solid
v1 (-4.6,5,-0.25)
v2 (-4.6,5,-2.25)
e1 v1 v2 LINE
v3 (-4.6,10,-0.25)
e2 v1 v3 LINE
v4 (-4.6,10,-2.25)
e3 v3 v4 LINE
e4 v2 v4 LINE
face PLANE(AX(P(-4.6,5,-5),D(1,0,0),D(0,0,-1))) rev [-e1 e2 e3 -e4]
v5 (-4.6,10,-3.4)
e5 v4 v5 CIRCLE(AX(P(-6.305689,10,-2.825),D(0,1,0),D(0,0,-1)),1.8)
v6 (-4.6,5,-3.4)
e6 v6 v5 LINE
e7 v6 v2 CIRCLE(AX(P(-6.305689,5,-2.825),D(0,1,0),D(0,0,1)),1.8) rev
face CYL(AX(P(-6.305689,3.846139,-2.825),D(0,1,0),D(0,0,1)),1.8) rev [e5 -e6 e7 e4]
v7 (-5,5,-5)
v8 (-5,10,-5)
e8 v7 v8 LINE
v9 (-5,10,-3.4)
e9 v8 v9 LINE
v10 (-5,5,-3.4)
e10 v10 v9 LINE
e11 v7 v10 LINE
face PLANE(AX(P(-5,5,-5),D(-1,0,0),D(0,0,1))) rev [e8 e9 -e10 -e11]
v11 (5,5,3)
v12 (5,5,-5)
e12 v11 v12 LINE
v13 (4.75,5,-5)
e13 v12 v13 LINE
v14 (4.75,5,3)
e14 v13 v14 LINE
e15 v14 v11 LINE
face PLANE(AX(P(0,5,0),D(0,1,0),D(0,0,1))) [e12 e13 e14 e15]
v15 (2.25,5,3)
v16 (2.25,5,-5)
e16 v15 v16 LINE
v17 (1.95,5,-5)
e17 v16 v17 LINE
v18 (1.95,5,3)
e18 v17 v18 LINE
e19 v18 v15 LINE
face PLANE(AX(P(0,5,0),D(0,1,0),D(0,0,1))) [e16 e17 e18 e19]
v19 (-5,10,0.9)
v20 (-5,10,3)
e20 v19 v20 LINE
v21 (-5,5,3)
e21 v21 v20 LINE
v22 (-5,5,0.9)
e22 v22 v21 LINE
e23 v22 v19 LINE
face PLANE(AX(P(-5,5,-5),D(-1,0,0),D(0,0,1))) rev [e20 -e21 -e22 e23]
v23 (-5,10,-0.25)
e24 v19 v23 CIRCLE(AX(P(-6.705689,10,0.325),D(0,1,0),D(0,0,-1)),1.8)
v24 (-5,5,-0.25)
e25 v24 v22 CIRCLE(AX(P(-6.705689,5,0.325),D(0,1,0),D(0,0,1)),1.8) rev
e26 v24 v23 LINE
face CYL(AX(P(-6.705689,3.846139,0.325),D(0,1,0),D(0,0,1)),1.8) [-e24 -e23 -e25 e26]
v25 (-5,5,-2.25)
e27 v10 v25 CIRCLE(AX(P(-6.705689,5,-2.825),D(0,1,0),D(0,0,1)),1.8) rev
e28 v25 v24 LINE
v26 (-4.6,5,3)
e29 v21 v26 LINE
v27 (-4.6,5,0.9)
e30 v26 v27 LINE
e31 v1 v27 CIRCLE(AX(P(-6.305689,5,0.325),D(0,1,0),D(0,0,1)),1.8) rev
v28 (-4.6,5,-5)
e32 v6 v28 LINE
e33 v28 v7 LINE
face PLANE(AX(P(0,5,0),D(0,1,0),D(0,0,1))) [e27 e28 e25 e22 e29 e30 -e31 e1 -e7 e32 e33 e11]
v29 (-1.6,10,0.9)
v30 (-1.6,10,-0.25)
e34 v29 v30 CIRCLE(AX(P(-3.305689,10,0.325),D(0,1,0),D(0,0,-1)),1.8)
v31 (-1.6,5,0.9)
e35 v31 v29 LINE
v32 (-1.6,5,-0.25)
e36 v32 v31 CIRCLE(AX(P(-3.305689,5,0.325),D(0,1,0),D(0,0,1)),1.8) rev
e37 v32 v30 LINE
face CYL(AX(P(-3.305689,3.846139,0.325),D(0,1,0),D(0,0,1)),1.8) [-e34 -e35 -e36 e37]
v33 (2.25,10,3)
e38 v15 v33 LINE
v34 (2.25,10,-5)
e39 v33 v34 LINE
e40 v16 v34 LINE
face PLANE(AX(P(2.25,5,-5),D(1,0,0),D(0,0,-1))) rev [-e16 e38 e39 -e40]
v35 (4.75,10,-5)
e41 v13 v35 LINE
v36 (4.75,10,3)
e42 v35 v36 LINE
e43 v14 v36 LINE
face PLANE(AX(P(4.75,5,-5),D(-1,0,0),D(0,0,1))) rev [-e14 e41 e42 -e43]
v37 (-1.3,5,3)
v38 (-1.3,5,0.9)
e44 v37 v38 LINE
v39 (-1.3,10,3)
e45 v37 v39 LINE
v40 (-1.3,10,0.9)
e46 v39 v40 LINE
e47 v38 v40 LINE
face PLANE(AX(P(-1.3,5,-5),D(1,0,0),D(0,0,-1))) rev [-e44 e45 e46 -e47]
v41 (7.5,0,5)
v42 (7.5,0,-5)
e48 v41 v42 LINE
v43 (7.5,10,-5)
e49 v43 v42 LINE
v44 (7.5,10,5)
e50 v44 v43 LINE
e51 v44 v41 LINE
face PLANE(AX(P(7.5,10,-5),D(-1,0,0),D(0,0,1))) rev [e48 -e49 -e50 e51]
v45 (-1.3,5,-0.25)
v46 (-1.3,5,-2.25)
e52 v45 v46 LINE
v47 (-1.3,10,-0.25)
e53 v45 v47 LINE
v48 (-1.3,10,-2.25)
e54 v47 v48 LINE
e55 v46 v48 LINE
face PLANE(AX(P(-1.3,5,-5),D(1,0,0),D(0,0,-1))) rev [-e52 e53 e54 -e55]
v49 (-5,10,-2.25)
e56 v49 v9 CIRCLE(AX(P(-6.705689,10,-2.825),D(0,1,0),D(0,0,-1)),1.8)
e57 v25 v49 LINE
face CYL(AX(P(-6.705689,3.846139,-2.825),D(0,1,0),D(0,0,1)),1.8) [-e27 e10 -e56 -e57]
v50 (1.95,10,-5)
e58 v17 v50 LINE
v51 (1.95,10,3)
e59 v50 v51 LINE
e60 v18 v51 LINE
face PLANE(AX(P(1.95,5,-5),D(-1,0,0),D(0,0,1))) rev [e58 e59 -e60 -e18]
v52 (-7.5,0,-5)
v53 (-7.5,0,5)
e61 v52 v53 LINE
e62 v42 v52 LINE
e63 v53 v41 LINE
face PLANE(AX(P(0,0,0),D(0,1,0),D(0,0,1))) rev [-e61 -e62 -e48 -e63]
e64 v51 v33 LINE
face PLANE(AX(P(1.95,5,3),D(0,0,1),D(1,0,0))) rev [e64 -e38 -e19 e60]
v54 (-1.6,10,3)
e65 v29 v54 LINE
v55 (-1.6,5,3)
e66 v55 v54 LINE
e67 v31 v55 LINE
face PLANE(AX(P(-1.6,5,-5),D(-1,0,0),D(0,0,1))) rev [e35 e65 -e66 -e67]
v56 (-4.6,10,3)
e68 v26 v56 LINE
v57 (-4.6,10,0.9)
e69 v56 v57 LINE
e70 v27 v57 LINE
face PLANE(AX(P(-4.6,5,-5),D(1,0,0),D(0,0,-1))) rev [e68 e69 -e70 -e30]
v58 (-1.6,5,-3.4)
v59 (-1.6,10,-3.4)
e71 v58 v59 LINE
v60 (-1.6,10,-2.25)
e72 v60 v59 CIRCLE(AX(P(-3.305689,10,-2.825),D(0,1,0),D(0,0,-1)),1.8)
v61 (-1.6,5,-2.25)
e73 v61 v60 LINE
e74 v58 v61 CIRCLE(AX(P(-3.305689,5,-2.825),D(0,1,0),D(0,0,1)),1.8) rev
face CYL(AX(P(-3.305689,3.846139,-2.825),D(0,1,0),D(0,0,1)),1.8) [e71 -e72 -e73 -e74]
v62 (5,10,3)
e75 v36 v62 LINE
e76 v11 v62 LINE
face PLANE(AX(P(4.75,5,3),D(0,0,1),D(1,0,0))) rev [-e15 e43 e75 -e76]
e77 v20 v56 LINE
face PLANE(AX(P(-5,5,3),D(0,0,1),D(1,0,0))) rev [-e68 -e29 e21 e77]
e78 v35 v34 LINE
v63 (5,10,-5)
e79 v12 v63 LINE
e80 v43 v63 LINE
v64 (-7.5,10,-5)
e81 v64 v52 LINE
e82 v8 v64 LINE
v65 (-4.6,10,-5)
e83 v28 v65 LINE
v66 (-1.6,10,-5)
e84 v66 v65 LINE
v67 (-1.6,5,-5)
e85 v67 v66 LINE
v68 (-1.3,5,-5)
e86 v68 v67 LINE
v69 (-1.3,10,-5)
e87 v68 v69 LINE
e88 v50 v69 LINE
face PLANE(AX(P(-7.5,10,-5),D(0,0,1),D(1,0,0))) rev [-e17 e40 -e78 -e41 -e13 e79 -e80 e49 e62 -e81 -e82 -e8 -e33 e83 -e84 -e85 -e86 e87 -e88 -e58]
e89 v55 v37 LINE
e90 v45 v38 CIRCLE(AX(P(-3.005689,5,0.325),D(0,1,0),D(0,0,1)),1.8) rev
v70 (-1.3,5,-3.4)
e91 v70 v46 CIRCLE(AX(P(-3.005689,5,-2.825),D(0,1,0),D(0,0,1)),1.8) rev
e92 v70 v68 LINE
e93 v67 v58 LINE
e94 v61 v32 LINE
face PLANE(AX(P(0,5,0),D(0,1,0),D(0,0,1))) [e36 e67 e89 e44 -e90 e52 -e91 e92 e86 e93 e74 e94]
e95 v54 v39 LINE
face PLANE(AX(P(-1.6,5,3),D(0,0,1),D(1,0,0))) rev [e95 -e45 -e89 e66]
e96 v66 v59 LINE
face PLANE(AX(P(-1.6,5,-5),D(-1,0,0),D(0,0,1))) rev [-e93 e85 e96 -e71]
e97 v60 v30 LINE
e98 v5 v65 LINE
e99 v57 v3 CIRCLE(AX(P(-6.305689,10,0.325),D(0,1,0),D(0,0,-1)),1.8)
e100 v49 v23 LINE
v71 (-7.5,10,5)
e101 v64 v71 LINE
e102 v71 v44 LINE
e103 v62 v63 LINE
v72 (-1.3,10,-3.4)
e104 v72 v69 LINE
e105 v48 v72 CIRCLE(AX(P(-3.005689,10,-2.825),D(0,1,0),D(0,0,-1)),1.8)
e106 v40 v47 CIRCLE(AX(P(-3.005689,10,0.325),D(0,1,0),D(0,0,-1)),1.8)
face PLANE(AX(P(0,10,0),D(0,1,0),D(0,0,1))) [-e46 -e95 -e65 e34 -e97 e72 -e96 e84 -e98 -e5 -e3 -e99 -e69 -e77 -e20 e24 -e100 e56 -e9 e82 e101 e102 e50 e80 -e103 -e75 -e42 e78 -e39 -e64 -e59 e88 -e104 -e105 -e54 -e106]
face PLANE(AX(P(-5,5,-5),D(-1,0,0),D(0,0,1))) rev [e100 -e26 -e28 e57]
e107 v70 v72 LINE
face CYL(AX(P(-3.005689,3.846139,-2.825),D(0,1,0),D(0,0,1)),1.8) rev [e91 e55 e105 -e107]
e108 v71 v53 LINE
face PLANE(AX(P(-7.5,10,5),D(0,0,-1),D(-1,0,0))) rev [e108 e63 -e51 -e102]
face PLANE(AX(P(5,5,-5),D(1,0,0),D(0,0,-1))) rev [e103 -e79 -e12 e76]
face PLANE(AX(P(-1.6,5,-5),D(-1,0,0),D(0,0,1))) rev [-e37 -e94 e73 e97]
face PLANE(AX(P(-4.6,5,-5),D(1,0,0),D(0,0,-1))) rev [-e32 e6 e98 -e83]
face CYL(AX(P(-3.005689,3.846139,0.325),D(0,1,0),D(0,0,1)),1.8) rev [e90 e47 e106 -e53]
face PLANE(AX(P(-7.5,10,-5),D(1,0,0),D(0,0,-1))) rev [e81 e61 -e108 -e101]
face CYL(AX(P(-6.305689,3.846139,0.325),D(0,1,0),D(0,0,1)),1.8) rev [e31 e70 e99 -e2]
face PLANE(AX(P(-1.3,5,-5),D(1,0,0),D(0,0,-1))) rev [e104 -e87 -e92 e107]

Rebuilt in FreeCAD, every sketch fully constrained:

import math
import FreeCAD as App
import Part
import Sketcher

V = App.Vector


def add_polygon(sketch, points):
    """Adds a closed chain of lines whose ends are joined by coincident constraints."""
    first, n = sketch.GeometryCount, len(points)
    for a, b in zip(points, points[1:] + points[:1]):
        sketch.addGeometry(Part.LineSegment(App.Vector(*a, 0), App.Vector(*b, 0)), False)
    for i in range(n):
        sketch.addConstraint(Sketcher.Constraint("Coincident", first + i, 2, first + (i + 1) % n, 1))

doc = App.newDocument("Part")
body = doc.addObject("PartDesign::Body", "Body")

# Sketch on XZ plane
sketch1 = doc.addObject("Sketcher::SketchObject", "Sketch")
body.addObject(sketch1)
sketch1.AttachmentSupport = (doc.XZ_Plane, [""])
sketch1.MapMode = "FlatFace"
add_polygon(sketch1, [(-7.5, -5), (-7.5, 5), (7.5, 5), (7.5, -5)])  # lines 0-3
sketch1.addConstraint([
    Sketcher.Constraint("Vertical", 0),
    Sketcher.Constraint("Horizontal", 1),
    Sketcher.Constraint("Vertical", 2),
    Sketcher.Constraint("Horizontal", 3),
    Sketcher.Constraint("Symmetric", 0, 2, 2, 2, -1, 1),
    Sketcher.Constraint("DistanceX", 1, 1, 1, 2, 15.0),
    Sketcher.Constraint("DistanceY", 0, 1, 0, 2, 10.0),
])
pad1 = doc.addObject("PartDesign::Pad", "Pad")
body.addObject(pad1)
pad1.Profile = sketch1
pad1.Length = 10
pad1.Reversed = True

# Sketch on XZ plane
sketch2 = doc.addObject("Sketcher::SketchObject", "Sketch001")
body.addObject(sketch2)
sketch2.AttachmentSupport = (doc.XZ_Plane, [""])
sketch2.MapMode = "FlatFace"
sketch2.AttachmentOffset = App.Placement(V(0, 0, -10), App.Rotation())
add_polygon(sketch2, [(-5, -5), (-5, 3), (-4.6, 3), (-4.6, -5)])  # lines 0-3
add_polygon(sketch2, [(-1.6, -5), (-1.6, 3), (-1.3, 3), (-1.3, -5)])  # lines 4-7
add_polygon(sketch2, [(1.95, -5), (1.95, 3), (2.25, 3), (2.25, -5)])  # lines 8-11
add_polygon(sketch2, [(4.75, -5), (4.75, 3), (5, 3), (5, -5)])  # lines 12-15
sketch2.addConstraint([
    Sketcher.Constraint("Vertical", 0),
    Sketcher.Constraint("Horizontal", 1),
    Sketcher.Constraint("Vertical", 2),
    Sketcher.Constraint("Horizontal", 3),
    Sketcher.Constraint("Vertical", 4),
    Sketcher.Constraint("Horizontal", 5),
    Sketcher.Constraint("Vertical", 6),
    Sketcher.Constraint("Horizontal", 7),
    Sketcher.Constraint("Vertical", 8),
    Sketcher.Constraint("Horizontal", 9),
    Sketcher.Constraint("Vertical", 10),
    Sketcher.Constraint("Horizontal", 11),
    Sketcher.Constraint("Vertical", 12),
    Sketcher.Constraint("Horizontal", 13),
    Sketcher.Constraint("Vertical", 14),
    Sketcher.Constraint("Horizontal", 15),
    Sketcher.Constraint("Symmetric", 0, 2, 13, 2, -2),
    Sketcher.Constraint("Horizontal", 1, 2, 4, 2),
    Sketcher.Constraint("Horizontal", 3, 2, 6, 2),
    Sketcher.Constraint("Horizontal", 5, 2, 8, 2),
    Sketcher.Constraint("Horizontal", 7, 2, 10, 2),
    Sketcher.Constraint("Horizontal", 11, 2, 14, 2),
    Sketcher.Constraint("Equal", 7, 9),
    Sketcher.Constraint("DistanceY", 0, 1, 0, 2, 8.0),
    Sketcher.Constraint("DistanceX", 1, 1, 1, 2, 0.4),
    Sketcher.Constraint("DistanceX", 5, 1, 5, 2, 0.3),
    Sketcher.Constraint("DistanceX", 0, 2, -1, 1, 5.0),
    Sketcher.Constraint("DistanceY", -1, 1, 0, 2, 3.0),
    Sketcher.Constraint("DistanceX", 1, 2, 4, 2, 3.0),
    Sketcher.Constraint("DistanceX", 13, 1, 13, 2, 0.25),
    Sketcher.Constraint("DistanceX", 9, 2, 12, 2, 2.5),
])
pocket1 = doc.addObject("PartDesign::Pocket", "Pocket")
body.addObject(pocket1)
pocket1.Profile = sketch2
pocket1.Length = 5
pocket1.Reversed = True

# Sketch on XZ plane
sketch3 = doc.addObject("Sketcher::SketchObject", "Sketch002")
body.addObject(sketch3)
sketch3.AttachmentSupport = (doc.XZ_Plane, [""])
sketch3.MapMode = "FlatFace"
sketch3.AttachmentOffset = App.Placement(V(0, 0, -10), App.Rotation())
sketch3.addGeometry([
    Part.LineSegment(V(-5, -3.4, 0), V(-5, -2.25, 0)),  # 0
    Part.ArcOfCircle(Part.Circle(V(-6.705689, -2.825, 0), V(0, 0, 1), 1.8), math.radians(-18.629331), math.radians(18.629331)),  # 1
    Part.LineSegment(V(-5, -0.25, 0), V(-5, 0.9, 0)),  # 2
    Part.ArcOfCircle(Part.Circle(V(-6.705689, 0.325, 0), V(0, 0, 1), 1.8), math.radians(-18.629331), math.radians(18.629331)),  # 3
    Part.LineSegment(V(-1.6, -3.4, 0), V(-1.6, -2.25, 0)),  # 4
    Part.ArcOfCircle(Part.Circle(V(-3.305689, -2.825, 0), V(0, 0, 1), 1.8), math.radians(-18.629331), math.radians(18.629331)),  # 5
    Part.LineSegment(V(-1.6, -0.25, 0), V(-1.6, 0.9, 0)),  # 6
    Part.ArcOfCircle(Part.Circle(V(-3.305689, 0.325, 0), V(0, 0, 1), 1.8), math.radians(-18.629331), math.radians(18.629331)),  # 7
], False)
sketch3.addConstraint([
    Sketcher.Constraint("Coincident", 0, 1, 1, 1),
    Sketcher.Constraint("Coincident", 1, 2, 0, 2),
    Sketcher.Constraint("Coincident", 2, 1, 3, 1),
    Sketcher.Constraint("Coincident", 3, 2, 2, 2),
    Sketcher.Constraint("Coincident", 4, 1, 5, 1),
    Sketcher.Constraint("Coincident", 5, 2, 4, 2),
    Sketcher.Constraint("Coincident", 6, 1, 7, 1),
    Sketcher.Constraint("Coincident", 7, 2, 6, 2),
    Sketcher.Constraint("Vertical", 0),
    Sketcher.Constraint("Vertical", 2),
    Sketcher.Constraint("Vertical", 4),
    Sketcher.Constraint("Vertical", 6),
    Sketcher.Constraint("Equal", 1, 3),
    Sketcher.Constraint("Equal", 3, 5),
    Sketcher.Constraint("Equal", 5, 7),
    Sketcher.Constraint("Horizontal", 1, 3, 5, 3),
    Sketcher.Constraint("Horizontal", 3, 3, 7, 3),
    Sketcher.Constraint("Horizontal", 0, 1, 4, 1),
    Sketcher.Constraint("Horizontal", 2, 1, 6, 1),
    Sketcher.Constraint("Vertical", 1, 3, 3, 3),
    Sketcher.Constraint("Vertical", 5, 3, 7, 3),
    Sketcher.Constraint("Vertical", 1, 2, 2, 1),
    Sketcher.Constraint("Radius", 1, 1.8),
    Sketcher.Constraint("DistanceX", 0, 1, -1, 1, 5.0),
    Sketcher.Constraint("DistanceY", 1, 2, 2, 1, 2.0),
    Sketcher.Constraint("DistanceY", 0, 1, 0, 2, 1.15),
    Sketcher.Constraint("DistanceY", 0, 1, -1, 1, 3.4),
    Sketcher.Constraint("DistanceX", 4, 1, -1, 1, 1.6),
])
pad2 = doc.addObject("PartDesign::Pad", "Pad001")
body.addObject(pad2)
pad2.Profile = sketch3
pad2.Length = 5

# Sketch on XZ plane
sketch4 = doc.addObject("Sketcher::SketchObject", "Sketch003")
body.addObject(sketch4)
sketch4.AttachmentSupport = (doc.XZ_Plane, [""])
sketch4.MapMode = "FlatFace"
sketch4.AttachmentOffset = App.Placement(V(0, 0, -10), App.Rotation())
sketch4.addGeometry([
    Part.LineSegment(V(-4.6, -3.4, 0), V(-4.6, -2.25, 0)),  # 0
    Part.ArcOfCircle(Part.Circle(V(-6.305689, -2.825, 0), V(0, 0, 1), 1.8), math.radians(-18.629331), math.radians(18.629331)),  # 1
    Part.LineSegment(V(-4.6, -0.25, 0), V(-4.6, 0.9, 0)),  # 2
    Part.ArcOfCircle(Part.Circle(V(-6.305689, 0.325, 0), V(0, 0, 1), 1.8), math.radians(-18.629331), math.radians(18.629331)),  # 3
    Part.LineSegment(V(-1.3, -3.4, 0), V(-1.3, -2.25, 0)),  # 4
    Part.ArcOfCircle(Part.Circle(V(-3.005689, -2.825, 0), V(0, 0, 1), 1.8), math.radians(-18.629331), math.radians(18.629331)),  # 5
    Part.LineSegment(V(-1.3, -0.25, 0), V(-1.3, 0.9, 0)),  # 6
    Part.ArcOfCircle(Part.Circle(V(-3.005689, 0.325, 0), V(0, 0, 1), 1.8), math.radians(-18.629331), math.radians(18.629331)),  # 7
], False)
sketch4.addConstraint([
    Sketcher.Constraint("Coincident", 0, 1, 1, 1),
    Sketcher.Constraint("Coincident", 1, 2, 0, 2),
    Sketcher.Constraint("Coincident", 2, 1, 3, 1),
    Sketcher.Constraint("Coincident", 3, 2, 2, 2),
    Sketcher.Constraint("Coincident", 4, 1, 5, 1),
    Sketcher.Constraint("Coincident", 5, 2, 4, 2),
    Sketcher.Constraint("Coincident", 6, 1, 7, 1),
    Sketcher.Constraint("Coincident", 7, 2, 6, 2),
    Sketcher.Constraint("Vertical", 0),
    Sketcher.Constraint("Vertical", 2),
    Sketcher.Constraint("Vertical", 4),
    Sketcher.Constraint("Vertical", 6),
    Sketcher.Constraint("Equal", 1, 3),
    Sketcher.Constraint("Equal", 3, 5),
    Sketcher.Constraint("Equal", 5, 7),
    Sketcher.Constraint("Horizontal", 1, 3, 5, 3),
    Sketcher.Constraint("Horizontal", 3, 3, 7, 3),
    Sketcher.Constraint("Horizontal", 0, 1, 4, 1),
    Sketcher.Constraint("Horizontal", 2, 1, 6, 1),
    Sketcher.Constraint("Vertical", 1, 3, 3, 3),
    Sketcher.Constraint("Vertical", 5, 3, 7, 3),
    Sketcher.Constraint("Vertical", 1, 2, 2, 1),
    Sketcher.Constraint("Radius", 1, 1.8),
    Sketcher.Constraint("DistanceY", 1, 2, 2, 1, 2.0),
    Sketcher.Constraint("DistanceY", 0, 1, 0, 2, 1.15),
    Sketcher.Constraint("DistanceX", 0, 1, -1, 1, 4.6),
    Sketcher.Constraint("DistanceY", 0, 1, -1, 1, 3.4),
    Sketcher.Constraint("DistanceX", 4, 1, -1, 1, 1.3),
])
pocket2 = doc.addObject("PartDesign::Pocket", "Pocket001")
body.addObject(pocket2)
pocket2.Profile = sketch4
pocket2.Length = 5
pocket2.Reversed = True

doc.recompute()
